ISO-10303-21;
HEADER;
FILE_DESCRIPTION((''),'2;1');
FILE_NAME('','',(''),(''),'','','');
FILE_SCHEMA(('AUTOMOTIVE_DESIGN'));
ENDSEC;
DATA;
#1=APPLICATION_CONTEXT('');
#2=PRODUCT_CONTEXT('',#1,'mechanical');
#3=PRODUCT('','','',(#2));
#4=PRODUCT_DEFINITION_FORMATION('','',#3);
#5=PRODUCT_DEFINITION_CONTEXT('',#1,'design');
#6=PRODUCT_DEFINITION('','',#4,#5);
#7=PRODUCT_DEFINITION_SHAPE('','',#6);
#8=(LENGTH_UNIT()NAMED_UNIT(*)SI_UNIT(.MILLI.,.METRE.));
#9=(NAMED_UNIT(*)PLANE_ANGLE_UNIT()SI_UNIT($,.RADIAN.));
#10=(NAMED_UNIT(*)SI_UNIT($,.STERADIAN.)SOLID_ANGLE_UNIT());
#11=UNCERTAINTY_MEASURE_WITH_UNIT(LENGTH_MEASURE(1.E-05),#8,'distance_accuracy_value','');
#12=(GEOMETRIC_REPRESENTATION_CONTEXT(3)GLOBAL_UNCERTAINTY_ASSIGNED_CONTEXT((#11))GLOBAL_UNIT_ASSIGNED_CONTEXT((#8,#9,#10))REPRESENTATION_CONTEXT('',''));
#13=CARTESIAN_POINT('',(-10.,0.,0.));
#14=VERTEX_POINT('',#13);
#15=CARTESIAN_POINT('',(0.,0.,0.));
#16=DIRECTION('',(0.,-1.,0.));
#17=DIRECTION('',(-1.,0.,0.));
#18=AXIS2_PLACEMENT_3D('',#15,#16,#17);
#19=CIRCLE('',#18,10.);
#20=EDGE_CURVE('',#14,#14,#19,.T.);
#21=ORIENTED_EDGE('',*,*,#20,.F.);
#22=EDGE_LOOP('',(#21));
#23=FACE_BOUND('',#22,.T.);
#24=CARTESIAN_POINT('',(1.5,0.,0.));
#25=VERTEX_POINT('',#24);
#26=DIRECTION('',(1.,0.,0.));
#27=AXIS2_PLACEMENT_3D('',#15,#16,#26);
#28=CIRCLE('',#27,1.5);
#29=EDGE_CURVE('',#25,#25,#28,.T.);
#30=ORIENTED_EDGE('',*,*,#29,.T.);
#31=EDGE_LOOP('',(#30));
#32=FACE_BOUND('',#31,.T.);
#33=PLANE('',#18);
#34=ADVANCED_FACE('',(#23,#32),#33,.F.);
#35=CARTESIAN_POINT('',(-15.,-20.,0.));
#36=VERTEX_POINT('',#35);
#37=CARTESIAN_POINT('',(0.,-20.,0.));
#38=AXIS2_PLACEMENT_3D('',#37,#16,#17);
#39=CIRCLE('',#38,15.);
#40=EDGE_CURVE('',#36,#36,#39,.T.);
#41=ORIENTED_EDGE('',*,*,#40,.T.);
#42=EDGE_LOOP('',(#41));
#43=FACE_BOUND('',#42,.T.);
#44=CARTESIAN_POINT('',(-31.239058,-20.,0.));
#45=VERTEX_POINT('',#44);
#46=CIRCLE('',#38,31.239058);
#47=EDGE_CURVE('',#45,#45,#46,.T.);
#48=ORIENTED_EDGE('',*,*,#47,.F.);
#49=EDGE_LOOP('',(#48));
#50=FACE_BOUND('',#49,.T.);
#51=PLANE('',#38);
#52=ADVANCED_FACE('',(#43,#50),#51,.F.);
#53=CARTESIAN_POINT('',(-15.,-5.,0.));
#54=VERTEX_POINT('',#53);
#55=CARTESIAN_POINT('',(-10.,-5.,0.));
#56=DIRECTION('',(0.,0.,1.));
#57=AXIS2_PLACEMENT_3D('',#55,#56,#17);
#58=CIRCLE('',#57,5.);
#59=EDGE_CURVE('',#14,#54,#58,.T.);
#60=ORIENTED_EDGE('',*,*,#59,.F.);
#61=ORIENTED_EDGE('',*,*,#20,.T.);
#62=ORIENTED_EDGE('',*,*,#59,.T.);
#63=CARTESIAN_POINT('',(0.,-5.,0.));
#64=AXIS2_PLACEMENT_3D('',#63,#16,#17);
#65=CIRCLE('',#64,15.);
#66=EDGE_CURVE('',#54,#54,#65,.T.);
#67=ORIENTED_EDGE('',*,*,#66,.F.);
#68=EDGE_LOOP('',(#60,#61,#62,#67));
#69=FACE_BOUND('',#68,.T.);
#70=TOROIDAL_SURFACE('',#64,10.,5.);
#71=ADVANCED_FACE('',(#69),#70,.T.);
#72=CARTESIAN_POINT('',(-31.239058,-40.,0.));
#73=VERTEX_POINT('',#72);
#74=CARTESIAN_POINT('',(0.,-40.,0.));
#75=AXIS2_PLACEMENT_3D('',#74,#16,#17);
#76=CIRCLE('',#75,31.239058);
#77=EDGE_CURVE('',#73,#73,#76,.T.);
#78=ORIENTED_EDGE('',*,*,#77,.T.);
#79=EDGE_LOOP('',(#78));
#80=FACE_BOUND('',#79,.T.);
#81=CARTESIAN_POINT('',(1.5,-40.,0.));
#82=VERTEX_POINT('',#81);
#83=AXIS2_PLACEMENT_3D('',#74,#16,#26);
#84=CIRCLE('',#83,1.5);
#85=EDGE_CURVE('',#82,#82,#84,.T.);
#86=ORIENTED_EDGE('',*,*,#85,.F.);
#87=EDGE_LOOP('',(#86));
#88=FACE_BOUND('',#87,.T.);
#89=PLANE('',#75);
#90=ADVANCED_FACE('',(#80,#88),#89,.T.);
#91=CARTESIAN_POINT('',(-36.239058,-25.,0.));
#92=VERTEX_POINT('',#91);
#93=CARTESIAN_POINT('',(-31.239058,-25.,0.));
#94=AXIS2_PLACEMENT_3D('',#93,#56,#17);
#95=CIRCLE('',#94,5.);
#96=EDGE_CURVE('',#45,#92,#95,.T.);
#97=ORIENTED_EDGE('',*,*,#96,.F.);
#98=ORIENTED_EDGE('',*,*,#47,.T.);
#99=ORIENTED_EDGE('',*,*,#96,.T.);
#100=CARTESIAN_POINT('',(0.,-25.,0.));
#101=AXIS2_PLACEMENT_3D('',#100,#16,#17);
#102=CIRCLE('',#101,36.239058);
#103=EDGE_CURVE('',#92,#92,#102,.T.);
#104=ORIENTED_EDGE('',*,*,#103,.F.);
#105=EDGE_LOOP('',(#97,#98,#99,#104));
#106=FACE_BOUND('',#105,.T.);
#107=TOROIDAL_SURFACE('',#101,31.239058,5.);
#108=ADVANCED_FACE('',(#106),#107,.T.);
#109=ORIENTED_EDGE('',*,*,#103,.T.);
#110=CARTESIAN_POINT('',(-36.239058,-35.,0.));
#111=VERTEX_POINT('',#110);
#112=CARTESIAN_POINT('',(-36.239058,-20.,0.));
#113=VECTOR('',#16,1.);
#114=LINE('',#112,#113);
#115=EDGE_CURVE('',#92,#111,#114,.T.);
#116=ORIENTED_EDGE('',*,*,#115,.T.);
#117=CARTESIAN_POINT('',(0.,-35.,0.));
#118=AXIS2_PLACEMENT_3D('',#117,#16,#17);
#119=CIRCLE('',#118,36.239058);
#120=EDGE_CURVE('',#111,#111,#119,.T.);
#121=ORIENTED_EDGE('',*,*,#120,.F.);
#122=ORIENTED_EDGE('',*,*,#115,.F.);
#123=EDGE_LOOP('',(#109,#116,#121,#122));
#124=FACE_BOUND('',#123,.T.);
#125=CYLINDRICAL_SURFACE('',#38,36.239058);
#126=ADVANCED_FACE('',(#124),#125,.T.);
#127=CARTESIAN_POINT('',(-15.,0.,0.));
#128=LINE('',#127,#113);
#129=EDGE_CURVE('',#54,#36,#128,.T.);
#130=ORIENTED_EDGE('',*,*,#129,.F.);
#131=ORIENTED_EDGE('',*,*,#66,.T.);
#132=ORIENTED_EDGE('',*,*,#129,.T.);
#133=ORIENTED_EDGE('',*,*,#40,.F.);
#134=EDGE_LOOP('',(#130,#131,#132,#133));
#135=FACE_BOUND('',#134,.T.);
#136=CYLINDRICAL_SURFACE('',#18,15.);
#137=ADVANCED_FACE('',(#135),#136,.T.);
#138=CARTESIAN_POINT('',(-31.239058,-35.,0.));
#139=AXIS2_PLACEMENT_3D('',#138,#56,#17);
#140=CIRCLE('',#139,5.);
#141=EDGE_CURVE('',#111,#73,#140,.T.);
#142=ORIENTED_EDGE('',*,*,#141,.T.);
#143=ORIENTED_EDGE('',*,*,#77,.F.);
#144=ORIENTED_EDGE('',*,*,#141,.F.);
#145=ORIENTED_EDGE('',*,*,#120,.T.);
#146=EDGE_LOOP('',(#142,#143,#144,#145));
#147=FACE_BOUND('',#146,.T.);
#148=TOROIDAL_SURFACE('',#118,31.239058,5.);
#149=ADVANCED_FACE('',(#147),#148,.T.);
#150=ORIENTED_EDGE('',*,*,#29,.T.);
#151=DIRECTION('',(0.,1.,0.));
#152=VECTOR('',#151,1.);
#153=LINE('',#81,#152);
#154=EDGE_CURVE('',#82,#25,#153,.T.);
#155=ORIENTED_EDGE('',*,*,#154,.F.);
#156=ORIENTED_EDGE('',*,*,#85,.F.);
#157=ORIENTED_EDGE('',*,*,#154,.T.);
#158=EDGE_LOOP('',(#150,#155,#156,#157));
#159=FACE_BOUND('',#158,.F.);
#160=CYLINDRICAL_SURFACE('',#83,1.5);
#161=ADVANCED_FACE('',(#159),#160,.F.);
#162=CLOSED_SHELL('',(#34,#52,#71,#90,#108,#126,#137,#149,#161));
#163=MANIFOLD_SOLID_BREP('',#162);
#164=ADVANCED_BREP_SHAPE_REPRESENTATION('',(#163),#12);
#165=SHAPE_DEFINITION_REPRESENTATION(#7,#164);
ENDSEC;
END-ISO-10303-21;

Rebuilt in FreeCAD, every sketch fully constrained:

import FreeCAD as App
import Part
import Sketcher
from FreeCAD import Vector
Q = App.Units.Quantity


def edges_at(feature, points):
    """Names of the edges that pass closest to the given points."""
    edges = feature.Shape.Edges
    near = lambda p: min(range(len(edges)), key=lambda i: edges[i].distToShape(Part.Vertex(*p))[0])
    return sorted({f"Edge{near(p) + 1}" for p in points})

doc = App.newDocument("Part")
body = doc.addObject("PartDesign::Body", "Body")

# Sketch on XY plane
sketch1 = body.newObject("Sketcher::SketchObject", "Sketch")
sketch1.AttachmentSupport = (doc.getObject("XY_Plane"), [""])
sketch1.MapMode = "FlatFace"
sketch1.addGeometry([
    Part.LineSegment(Vector(0, -40, 0), Vector(0, 0, 0)),  # 0
    Part.LineSegment(Vector(0, 0, 0), Vector(-15, 0, 0)),  # 1
    Part.LineSegment(Vector(-15, 0, 0), Vector(-15, -20, 0)),  # 2
    Part.LineSegment(Vector(-15, -20, 0), Vector(-36, -20, 0)),  # 3
    Part.LineSegment(Vector(-36, -20, 0), Vector(-36, -40, 0)),  # 4
    Part.LineSegment(Vector(-36, -40, 0), Vector(0, -40, 0)),  # 5
], False)
sketch1.addConstraint([
    Sketcher.Constraint("Coincident", 0, 2, 1, 1),
    Sketcher.Constraint("Coincident", 1, 2, 2, 1),
    Sketcher.Constraint("Coincident", 2, 2, 3, 1),
    Sketcher.Constraint("Coincident", 3, 2, 4, 1),
    Sketcher.Constraint("Coincident", 4, 2, 5, 1),
    Sketcher.Constraint("Coincident", 5, 2, 0, 1),
    Sketcher.Constraint("Vertical", 0),
    Sketcher.Constraint("Horizontal", 1),
    Sketcher.Constraint("Vertical", 2),
    Sketcher.Constraint("Horizontal", 3),
    Sketcher.Constraint("Vertical", 4),
    Sketcher.Constraint("Horizontal", 5),
    Sketcher.Constraint("Coincident", 0, 2, -1, 1),
    Sketcher.Constraint("Equal", 2, 4),
    Sketcher.Constraint("DistanceX", 1, 2, 1, 1, Q("15 mm")),
    Sketcher.Constraint("DistanceY", 0, 1, 0, 2, Q("40 mm")),
    Sketcher.Constraint("DistanceX", 3, 2, 3, 1, Q("21.239058 mm")),
])
revolution = body.newObject("PartDesign::Revolution", "Revolution")
revolution.Profile = sketch1
revolution.ReferenceAxis = (sketch1, ["V_Axis"])
revolution.Angle = 360
doc.recompute()

fillet = body.newObject("PartDesign::Fillet", "Fillet")
fillet.Base = (revolution, edges_at(revolution, [(15, 0, 0), (36.239, -20, 0), (36.239, -40, 0)]))
fillet.Radius = 5

# Sketch on XZ plane
sketch2 = body.newObject("Sketcher::SketchObject", "Sketch001")
sketch2.AttachmentSupport = (doc.getObject("XZ_Plane"), [""])
sketch2.MapMode = "FlatFace"
sketch2.AttachmentOffset = App.Placement(Vector(0, 0, 40), App.Rotation())
sketch2.addGeometry(Part.Circle(Vector(0, 0, 0), Vector(0, 0, 1), 1.5), False)
sketch2.addConstraint([
    Sketcher.Constraint("Coincident", 0, 3, -1, 1),
    Sketcher.Constraint("Diameter", 0, Q("3 mm")),
])
pocket1 = body.newObject("PartDesign::Pocket", "Pocket")
pocket1.Profile = sketch2
pocket1.Length = 70.5

doc.recompute()
